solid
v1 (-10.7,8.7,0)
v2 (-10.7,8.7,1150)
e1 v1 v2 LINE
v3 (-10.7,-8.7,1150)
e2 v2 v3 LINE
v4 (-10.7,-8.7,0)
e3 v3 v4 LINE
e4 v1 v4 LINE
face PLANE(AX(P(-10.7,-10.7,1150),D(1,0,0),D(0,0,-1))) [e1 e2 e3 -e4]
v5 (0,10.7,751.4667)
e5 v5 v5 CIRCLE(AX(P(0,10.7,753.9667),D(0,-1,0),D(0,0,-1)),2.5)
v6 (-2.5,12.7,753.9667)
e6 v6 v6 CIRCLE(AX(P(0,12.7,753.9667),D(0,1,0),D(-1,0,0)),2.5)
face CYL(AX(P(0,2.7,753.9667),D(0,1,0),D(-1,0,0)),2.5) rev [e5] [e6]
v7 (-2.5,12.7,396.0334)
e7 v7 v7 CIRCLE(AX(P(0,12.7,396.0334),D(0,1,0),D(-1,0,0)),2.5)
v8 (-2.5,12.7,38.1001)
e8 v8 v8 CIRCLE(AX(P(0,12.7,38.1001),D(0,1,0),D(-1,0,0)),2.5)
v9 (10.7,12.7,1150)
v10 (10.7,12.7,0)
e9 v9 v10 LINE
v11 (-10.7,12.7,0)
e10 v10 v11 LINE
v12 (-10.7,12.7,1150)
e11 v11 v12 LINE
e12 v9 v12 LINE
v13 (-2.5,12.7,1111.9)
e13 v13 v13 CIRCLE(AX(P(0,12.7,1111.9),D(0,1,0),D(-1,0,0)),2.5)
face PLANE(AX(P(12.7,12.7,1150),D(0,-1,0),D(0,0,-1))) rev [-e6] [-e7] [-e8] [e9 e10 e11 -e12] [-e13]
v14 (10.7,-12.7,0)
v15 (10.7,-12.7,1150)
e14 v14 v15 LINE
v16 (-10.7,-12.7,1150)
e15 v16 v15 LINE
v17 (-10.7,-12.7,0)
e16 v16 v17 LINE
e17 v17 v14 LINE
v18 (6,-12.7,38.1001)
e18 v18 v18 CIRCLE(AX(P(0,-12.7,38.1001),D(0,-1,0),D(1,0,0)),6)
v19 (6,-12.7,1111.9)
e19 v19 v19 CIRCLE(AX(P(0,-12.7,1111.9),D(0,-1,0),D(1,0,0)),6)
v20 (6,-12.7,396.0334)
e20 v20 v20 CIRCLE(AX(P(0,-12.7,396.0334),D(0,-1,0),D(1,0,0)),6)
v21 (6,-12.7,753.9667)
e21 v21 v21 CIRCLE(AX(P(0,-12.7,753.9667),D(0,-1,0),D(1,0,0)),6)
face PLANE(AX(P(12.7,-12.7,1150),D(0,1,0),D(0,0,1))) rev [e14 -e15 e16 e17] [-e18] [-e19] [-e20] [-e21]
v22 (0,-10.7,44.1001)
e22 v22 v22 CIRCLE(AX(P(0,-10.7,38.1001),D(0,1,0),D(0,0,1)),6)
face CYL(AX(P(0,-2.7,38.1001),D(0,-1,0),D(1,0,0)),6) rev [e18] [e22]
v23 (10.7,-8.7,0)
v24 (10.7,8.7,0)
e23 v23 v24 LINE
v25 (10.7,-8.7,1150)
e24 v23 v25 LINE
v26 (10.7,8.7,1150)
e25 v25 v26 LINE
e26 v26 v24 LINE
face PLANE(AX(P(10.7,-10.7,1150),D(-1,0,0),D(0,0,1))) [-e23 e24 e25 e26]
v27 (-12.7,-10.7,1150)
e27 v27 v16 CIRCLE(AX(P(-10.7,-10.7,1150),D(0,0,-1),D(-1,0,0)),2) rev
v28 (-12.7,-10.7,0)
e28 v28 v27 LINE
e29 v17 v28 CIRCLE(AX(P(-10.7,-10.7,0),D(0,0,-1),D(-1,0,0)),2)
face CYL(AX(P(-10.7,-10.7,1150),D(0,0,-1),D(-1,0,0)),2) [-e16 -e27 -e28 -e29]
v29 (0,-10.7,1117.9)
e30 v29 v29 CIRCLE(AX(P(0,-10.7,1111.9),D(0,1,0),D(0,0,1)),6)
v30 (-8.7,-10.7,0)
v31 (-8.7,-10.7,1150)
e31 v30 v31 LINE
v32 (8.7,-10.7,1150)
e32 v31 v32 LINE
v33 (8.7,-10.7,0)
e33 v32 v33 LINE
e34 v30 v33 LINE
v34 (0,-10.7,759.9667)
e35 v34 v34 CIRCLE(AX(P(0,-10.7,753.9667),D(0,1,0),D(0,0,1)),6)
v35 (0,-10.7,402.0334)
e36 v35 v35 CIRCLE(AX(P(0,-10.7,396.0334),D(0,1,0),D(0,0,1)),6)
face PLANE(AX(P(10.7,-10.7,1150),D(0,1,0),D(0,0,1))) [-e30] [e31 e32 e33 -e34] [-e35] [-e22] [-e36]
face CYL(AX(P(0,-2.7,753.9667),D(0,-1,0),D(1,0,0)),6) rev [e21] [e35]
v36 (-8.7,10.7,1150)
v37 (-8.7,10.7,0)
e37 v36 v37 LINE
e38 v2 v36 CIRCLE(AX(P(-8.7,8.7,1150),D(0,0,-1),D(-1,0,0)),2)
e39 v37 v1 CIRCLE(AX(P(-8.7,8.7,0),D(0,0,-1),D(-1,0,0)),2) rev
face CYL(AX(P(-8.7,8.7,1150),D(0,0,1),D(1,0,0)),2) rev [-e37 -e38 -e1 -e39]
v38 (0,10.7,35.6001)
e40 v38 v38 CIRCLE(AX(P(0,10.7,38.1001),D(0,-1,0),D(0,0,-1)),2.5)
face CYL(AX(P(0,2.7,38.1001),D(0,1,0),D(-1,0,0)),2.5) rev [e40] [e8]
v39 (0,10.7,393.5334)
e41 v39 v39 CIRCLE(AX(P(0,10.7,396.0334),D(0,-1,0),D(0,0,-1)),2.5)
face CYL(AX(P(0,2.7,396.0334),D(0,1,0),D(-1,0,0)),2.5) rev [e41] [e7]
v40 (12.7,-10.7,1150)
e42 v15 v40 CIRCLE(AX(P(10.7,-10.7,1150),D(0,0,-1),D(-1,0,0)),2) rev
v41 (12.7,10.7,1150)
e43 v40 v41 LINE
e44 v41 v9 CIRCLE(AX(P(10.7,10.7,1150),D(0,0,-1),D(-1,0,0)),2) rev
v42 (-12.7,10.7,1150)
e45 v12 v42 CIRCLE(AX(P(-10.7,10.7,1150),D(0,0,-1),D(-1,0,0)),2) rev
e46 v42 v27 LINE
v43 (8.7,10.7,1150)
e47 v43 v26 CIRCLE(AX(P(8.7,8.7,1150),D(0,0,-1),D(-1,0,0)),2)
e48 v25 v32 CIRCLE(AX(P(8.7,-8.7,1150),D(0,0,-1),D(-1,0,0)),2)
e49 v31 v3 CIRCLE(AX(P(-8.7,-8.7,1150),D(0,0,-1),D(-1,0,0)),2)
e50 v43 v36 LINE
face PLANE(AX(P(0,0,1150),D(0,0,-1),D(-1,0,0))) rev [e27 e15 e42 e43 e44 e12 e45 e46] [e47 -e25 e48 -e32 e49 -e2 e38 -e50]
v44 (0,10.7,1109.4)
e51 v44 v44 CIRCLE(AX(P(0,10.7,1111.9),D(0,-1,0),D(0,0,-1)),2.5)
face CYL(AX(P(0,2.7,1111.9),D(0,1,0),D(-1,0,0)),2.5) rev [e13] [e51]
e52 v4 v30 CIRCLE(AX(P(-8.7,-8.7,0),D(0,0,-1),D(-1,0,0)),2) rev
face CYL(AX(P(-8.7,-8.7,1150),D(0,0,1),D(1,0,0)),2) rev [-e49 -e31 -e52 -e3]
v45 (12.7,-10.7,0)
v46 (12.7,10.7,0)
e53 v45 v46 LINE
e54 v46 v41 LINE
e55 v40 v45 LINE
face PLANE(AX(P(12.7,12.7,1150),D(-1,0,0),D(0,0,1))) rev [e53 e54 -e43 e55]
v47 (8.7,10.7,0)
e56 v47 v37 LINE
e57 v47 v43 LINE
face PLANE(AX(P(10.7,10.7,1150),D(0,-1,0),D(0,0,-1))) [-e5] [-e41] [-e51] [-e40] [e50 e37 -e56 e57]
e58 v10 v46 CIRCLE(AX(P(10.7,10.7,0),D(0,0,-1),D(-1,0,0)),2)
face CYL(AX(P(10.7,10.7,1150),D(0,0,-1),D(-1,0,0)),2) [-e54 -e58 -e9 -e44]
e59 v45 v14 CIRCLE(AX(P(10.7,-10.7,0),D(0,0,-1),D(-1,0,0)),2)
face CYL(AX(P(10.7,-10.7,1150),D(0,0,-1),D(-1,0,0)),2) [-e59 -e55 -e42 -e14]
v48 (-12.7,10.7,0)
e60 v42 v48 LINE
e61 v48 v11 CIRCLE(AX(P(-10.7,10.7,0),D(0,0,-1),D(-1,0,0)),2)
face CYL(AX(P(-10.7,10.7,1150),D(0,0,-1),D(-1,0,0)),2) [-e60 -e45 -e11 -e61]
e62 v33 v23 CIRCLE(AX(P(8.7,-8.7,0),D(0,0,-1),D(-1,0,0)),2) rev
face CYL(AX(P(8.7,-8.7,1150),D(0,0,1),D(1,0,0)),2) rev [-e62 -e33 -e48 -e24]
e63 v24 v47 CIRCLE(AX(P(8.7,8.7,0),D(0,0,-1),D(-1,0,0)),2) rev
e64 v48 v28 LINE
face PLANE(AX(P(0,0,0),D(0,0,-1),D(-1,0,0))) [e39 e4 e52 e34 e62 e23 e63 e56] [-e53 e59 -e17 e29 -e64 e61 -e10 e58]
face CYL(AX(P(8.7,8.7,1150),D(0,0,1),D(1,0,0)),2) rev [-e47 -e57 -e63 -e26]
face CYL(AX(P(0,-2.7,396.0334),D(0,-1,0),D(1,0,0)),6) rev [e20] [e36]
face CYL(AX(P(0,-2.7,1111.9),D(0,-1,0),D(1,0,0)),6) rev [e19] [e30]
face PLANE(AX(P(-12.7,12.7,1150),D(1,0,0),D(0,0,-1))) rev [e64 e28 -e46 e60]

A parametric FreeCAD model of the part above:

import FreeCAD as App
import Part
import Sketcher
Q = App.Units.Quantity


def edges_at(feature, points):
    """Names of the edges that pass closest to the given points."""
    edges = feature.Shape.Edges
    near = lambda p: min(range(len(edges)), key=lambda i: edges[i].distToShape(Part.Vertex(*p))[0])
    return sorted({f"Edge{near(p) + 1}" for p in points})


def add_polygon(sketch, points):
    """Adds a closed chain of lines whose ends are joined by coincident constraints."""
    first, n = sketch.GeometryCount, len(points)
    for a, b in zip(points, points[1:] + points[:1]):
        sketch.addGeometry(Part.LineSegment(App.Vector(*a, 0), App.Vector(*b, 0)), False)
    for i in range(n):
        sketch.addConstraint(Sketcher.Constraint("Coincident", first + i, 2, first + (i + 1) % n, 1))

doc = App.newDocument("Part")
body = doc.addObject("PartDesign::Body", "Body")

sketch1 = body.newObject("Sketcher::SketchObject", "Sketch")
sketch1.AttachmentSupport = (doc.getObject("XY_Plane"), [""])
sketch1.MapMode = "FlatFace"
add_polygon(sketch1, [(-12.7, 12.7), (-12.7, -12.7), (12.7, -12.7), (12.7, 12.7)])
add_polygon(sketch1, [(10.7, -10.7), (-10.7, -10.7), (-10.7, 10.7), (10.7, 10.7)])
sketch1.addConstraint(Sketcher.Constraint("Vertical", 0))
sketch1.addConstraint(Sketcher.Constraint("Horizontal", 1))
sketch1.addConstraint(Sketcher.Constraint("Vertical", 2))
sketch1.addConstraint(Sketcher.Constraint("Horizontal", 3))
sketch1.addConstraint(Sketcher.Constraint("Horizontal", 4))
sketch1.addConstraint(Sketcher.Constraint("Vertical", 5))
sketch1.addConstraint(Sketcher.Constraint("Horizontal", 6))
sketch1.addConstraint(Sketcher.Constraint("Vertical", 7))
sketch1.addConstraint(Sketcher.Constraint("Symmetric", 0, 2, 2, 2, -1, 1))
sketch1.addConstraint(Sketcher.Constraint("Symmetric", 4, 2, 6, 2, -1, 1))
sketch1.addConstraint(Sketcher.Constraint("Equal", 3, 0))
sketch1.addConstraint(Sketcher.Constraint("Equal", 6, 5))
sketch1.addConstraint(Sketcher.Constraint("DistanceX", 1, 1, 1, 2, Q("25.4 mm")))
sketch1.addConstraint(Sketcher.Constraint("DistanceX", 4, 2, 4, 1, Q("21.4 mm")))
pad1 = body.newObject("PartDesign::Pad", "Pad")
pad1.Profile = sketch1
pad1.Length = 1150
doc.recompute()

fillet = body.newObject("PartDesign::Fillet", "Fillet")
fillet.Base = (pad1, edges_at(pad1, [
    (-10.7, 10.7, 575),
    (-10.7, -10.7, 575),
    (10.7, -10.7, 575),
    (10.7, 10.7, 575),
    (-12.7, 12.7, 575),
    (12.7, 12.7, 575),
    (12.7, -12.7, 575),
    (-12.7, -12.7, 575),
]))
fillet.Radius = 2

sketch2 = body.newObject("Sketcher::SketchObject", "Sketch001")
sketch2.AttachmentSupport = (doc.getObject("XZ_Plane"), [""])
sketch2.MapMode = "FlatFace"
sketch2.AttachmentOffset = App.Placement(App.Vector(0, 0, -12.7), App.Rotation())
sketch2.addGeometry(Part.Circle(App.Vector(0, 1111.9, 0), App.Vector(0, 0, 1), 2.5), False)
sketch2.addConstraint(Sketcher.Constraint("PointOnObject", 0, 3, -2))
sketch2.addConstraint(Sketcher.Constraint("Diameter", 0, Q("5 mm")))
sketch2.addConstraint(Sketcher.Constraint("DistanceY", -1, 1, 0, 3, Q("1111.9 mm")))
pocket1 = body.newObject("PartDesign::Pocket", "Pocket")
pocket1.Profile = sketch2
pocket1.Length = 10
pocket1.Reversed = True
doc.recompute()

linearpattern = body.newObject("PartDesign::LinearPattern", "LinearPattern")
linearpattern.Originals = [pocket1]
linearpattern.Direction = (doc.getObject("Z_Axis"), [""])
linearpattern.Mode = "offset"
linearpattern.Offset = 357.9333
linearpattern.Occurrences = 4
linearpattern.Reversed = True
body.Tip = linearpattern

sketch3 = body.newObject("Sketcher::SketchObject", "Sketch002")
sketch3.AttachmentSupport = (doc.getObject("XZ_Plane"), [""])
sketch3.MapMode = "FlatFace"
sketch3.AttachmentOffset = App.Placement(App.Vector(0, 0, 12.7), App.Rotation())
sketch3.addGeometry(Part.Circle(App.Vector(0, 1111.9, 0), App.Vector(0, 0, 1), 6), False)
sketch3.addConstraint(Sketcher.Constraint("PointOnObject", 0, 3, -2))
sketch3.addConstraint(Sketcher.Constraint("Diameter", 0, Q("12 mm")))
sketch3.addConstraint(Sketcher.Constraint("DistanceY", -1, 1, 0, 3, Q("1111.9 mm")))
pocket2 = body.newObject("PartDesign::Pocket", "Pocket001")
pocket2.Profile = sketch3
pocket2.Length = 10
doc.recompute()

linearpattern2 = body.newObject("PartDesign::LinearPattern", "LinearPattern001")
linearpattern2.Originals = [pocket2]
linearpattern2.Direction = (doc.getObject("Z_Axis"), [""])
linearpattern2.Mode = "offset"
linearpattern2.Offset = 357.9333
linearpattern2.Occurrences = 4
linearpattern2.Reversed = True
body.Tip = linearpattern2

doc.recompute()
